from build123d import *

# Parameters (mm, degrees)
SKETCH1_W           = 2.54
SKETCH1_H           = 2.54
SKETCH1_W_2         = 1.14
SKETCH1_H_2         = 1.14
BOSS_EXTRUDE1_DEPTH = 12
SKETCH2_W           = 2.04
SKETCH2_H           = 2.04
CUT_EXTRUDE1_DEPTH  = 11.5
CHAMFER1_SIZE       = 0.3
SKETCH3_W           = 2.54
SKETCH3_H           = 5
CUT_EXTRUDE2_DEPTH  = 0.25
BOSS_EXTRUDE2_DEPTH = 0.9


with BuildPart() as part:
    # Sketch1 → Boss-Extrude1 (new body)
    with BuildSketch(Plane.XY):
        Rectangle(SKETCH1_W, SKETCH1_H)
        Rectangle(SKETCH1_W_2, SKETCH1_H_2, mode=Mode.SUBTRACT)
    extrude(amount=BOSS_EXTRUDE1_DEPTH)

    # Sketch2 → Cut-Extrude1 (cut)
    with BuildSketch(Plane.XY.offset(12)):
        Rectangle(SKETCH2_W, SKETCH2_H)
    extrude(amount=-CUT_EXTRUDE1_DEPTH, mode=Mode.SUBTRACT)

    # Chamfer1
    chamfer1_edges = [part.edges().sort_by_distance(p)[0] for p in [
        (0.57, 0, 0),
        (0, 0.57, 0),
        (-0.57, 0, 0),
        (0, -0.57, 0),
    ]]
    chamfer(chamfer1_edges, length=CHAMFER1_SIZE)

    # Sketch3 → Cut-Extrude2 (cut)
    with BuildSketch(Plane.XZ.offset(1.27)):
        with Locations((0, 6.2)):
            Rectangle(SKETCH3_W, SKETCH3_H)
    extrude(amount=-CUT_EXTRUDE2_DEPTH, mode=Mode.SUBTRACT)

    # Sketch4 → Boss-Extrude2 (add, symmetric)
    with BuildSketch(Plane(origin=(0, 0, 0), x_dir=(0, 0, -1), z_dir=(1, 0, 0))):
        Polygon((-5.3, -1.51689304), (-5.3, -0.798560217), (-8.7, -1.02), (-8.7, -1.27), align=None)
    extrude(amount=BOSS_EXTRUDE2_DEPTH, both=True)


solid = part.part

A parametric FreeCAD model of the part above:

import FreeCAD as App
import Part
import Sketcher
Q = App.Units.Quantity


def edges_at(feature, points):
    """Names of the edges that pass closest to the given points."""
    edges = feature.Shape.Edges
    near = lambda p: min(range(len(edges)), key=lambda i: edges[i].distToShape(Part.Vertex(*p))[0])
    return sorted({f"Edge{near(p) + 1}" for p in points})

doc = App.newDocument("Part")
body = doc.addObject("PartDesign::Body", "Body")

# Sketch on XY plane
sketch1 = body.newObject("Sketcher::SketchObject", "Sketch")
sketch1.AttachmentSupport = (doc.getObject("XY_Plane"), [""])
sketch1.MapMode = "FlatFace"
sketch1.addGeometry([
    Part.LineSegment(App.Vector(-1.3, 1.3, 0), App.Vector(-1.3, -1.3, 0)),  # 0
    Part.LineSegment(App.Vector(-1.3, -1.3, 0), App.Vector(1.3, -1.3, 0)),  # 1
    Part.LineSegment(App.Vector(1.3, -1.3, 0), App.Vector(1.3, 1.3, 0)),  # 2
    Part.LineSegment(App.Vector(1.3, 1.3, 0), App.Vector(-1.3, 1.3, 0)),  # 3
    Part.LineSegment(App.Vector(0.6, -0.6, 0), App.Vector(-0.6, -0.6, 0)),  # 4
    Part.LineSegment(App.Vector(-0.6, -0.6, 0), App.Vector(-0.6, 0.6, 0)),  # 5
    Part.LineSegment(App.Vector(-0.6, 0.6, 0), App.Vector(0.6, 0.6, 0)),  # 6
    Part.LineSegment(App.Vector(0.6, 0.6, 0), App.Vector(0.6, -0.6, 0)),  # 7
], False)
sketch1.addConstraint([
    Sketcher.Constraint("Coincident", 0, 2, 1, 1),
    Sketcher.Constraint("Coincident", 1, 2, 2, 1),
    Sketcher.Constraint("Coincident", 2, 2, 3, 1),
    Sketcher.Constraint("Coincident", 3, 2, 0, 1),
    Sketcher.Constraint("Coincident", 4, 2, 5, 1),
    Sketcher.Constraint("Coincident", 5, 2, 6, 1),
    Sketcher.Constraint("Coincident", 6, 2, 7, 1),
    Sketcher.Constraint("Coincident", 7, 2, 4, 1),
    Sketcher.Constraint("Vertical", 0),
    Sketcher.Constraint("Horizontal", 1),
    Sketcher.Constraint("Vertical", 2),
    Sketcher.Constraint("Horizontal", 3),
    Sketcher.Constraint("Horizontal", 4),
    Sketcher.Constraint("Vertical", 5),
    Sketcher.Constraint("Horizontal", 6),
    Sketcher.Constraint("Vertical", 7),
    Sketcher.Constraint("Symmetric", 0, 2, 2, 2, -1, 1),
    Sketcher.Constraint("Symmetric", 4, 2, 6, 2, -1, 1),
    Sketcher.Constraint("Equal", 3, 0),
    Sketcher.Constraint("Equal", 6, 5),
    Sketcher.Constraint("DistanceX", 1, 1, 1, 2, Q("2.54 mm")),
    Sketcher.Constraint("DistanceX", 4, 2, 4, 1, Q("1.14 mm")),
])
pad1 = body.newObject("PartDesign::Pad", "Pad")
pad1.Profile = sketch1
pad1.Length = 12

# Sketch on XY plane
sketch2 = body.newObject("Sketcher::SketchObject", "Sketch001")
sketch2.AttachmentSupport = (doc.getObject("XY_Plane"), [""])
sketch2.MapMode = "FlatFace"
sketch2.AttachmentOffset = App.Placement(App.Vector(0, 0, 12), App.Rotation())
sketch2.addGeometry([
    Part.LineSegment(App.Vector(-1, 1, 0), App.Vector(-1, -1, 0)),
    Part.LineSegment(App.Vector(-1, -1, 0), App.Vector(1, -1, 0)),
    Part.LineSegment(App.Vector(1, -1, 0), App.Vector(1, 1, 0)),
    Part.LineSegment(App.Vector(1, 1, 0), App.Vector(-1, 1, 0)),
], False)
sketch2.addConstraint([
    Sketcher.Constraint("Coincident", 0, 2, 1, 1),
    Sketcher.Constraint("Coincident", 1, 2, 2, 1),
    Sketcher.Constraint("Coincident", 2, 2, 3, 1),
    Sketcher.Constraint("Coincident", 3, 2, 0, 1),
    Sketcher.Constraint("Vertical", 0),
    Sketcher.Constraint("Horizontal", 1),
    Sketcher.Constraint("Vertical", 2),
    Sketcher.Constraint("Horizontal", 3),
    Sketcher.Constraint("Symmetric", 0, 2, 2, 2, -1, 1),
    Sketcher.Constraint("Equal", 3, 0),
    Sketcher.Constraint("DistanceX", 1, 1, 1, 2, Q("2.04 mm")),
])
pocket1 = body.newObject("PartDesign::Pocket", "Pocket")
pocket1.Profile = sketch2
pocket1.Length = 11.5
doc.recompute()

chamfer = body.newObject("PartDesign::Chamfer", "Chamfer")
chamfer.Base = (pocket1, edges_at(pocket1, [
    (0.57, 0, 0),
    (0, 0.57, 0),
    (-0.57, 0, 0),
    (0, -0.57, 0),
]))
chamfer.Size = 0.3

# Sketch on XZ plane
sketch3 = body.newObject("Sketcher::SketchObject", "Sketch002")
sketch3.AttachmentSupport = (doc.getObject("XZ_Plane"), [""])
sketch3.MapMode = "FlatFace"
sketch3.AttachmentOffset = App.Placement(App.Vector(0, 0, 1.27), App.Rotation())
sketch3.addGeometry([
    Part.LineSegment(App.Vector(-1.3, 8.7, 0), App.Vector(-1.3, 3.7, 0)),
    Part.LineSegment(App.Vector(-1.3, 3.7, 0), App.Vector(1.3, 3.7, 0)),
    Part.LineSegment(App.Vector(1.3, 3.7, 0), App.Vector(1.3, 8.7, 0)),
    Part.LineSegment(App.Vector(1.3, 8.7, 0), App.Vector(-1.3, 8.7, 0)),
], False)
sketch3.addConstraint([
    Sketcher.Constraint("Coincident", 0, 2, 1, 1),
    Sketcher.Constraint("Coincident", 1, 2, 2, 1),
    Sketcher.Constraint("Coincident", 2, 2, 3, 1),
    Sketcher.Constraint("Coincident", 3, 2, 0, 1),
    Sketcher.Constraint("Vertical", 0),
    Sketcher.Constraint("Horizontal", 1),
    Sketcher.Constraint("Vertical", 2),
    Sketcher.Constraint("Horizontal", 3),
    Sketcher.Constraint("DistanceY", 0, 2, 0, 1, Q("5 mm")),
    Sketcher.Constraint("DistanceX", 1, 1, 1, 2, Q("2.54 mm")),
    Sketcher.Constraint("DistanceY", -1, 1, 0, 2, Q("3.7 mm")),
    Sketcher.Constraint("DistanceX", 0, 2, -1, 1, Q("1.27 mm")),
])
pocket2 = body.newObject("PartDesign::Pocket", "Pocket001")
pocket2.Profile = sketch3
pocket2.Length = 0.25

# Sketch on YZ plane
sketch4 = body.newObject("Sketcher::SketchObject", "Sketch003")
sketch4.AttachmentSupport = (doc.getObject("YZ_Plane"), [""])
sketch4.MapMode = "FlatFace"
sketch4.addGeometry([
    Part.LineSegment(App.Vector(-1.52, 5.3, 0), App.Vector(-0.8, 5.3, 0)),
    Part.LineSegment(App.Vector(-0.8, 5.3, 0), App.Vector(-1.02, 8.7, 0)),
    Part.LineSegment(App.Vector(-1.02, 8.7, 0), App.Vector(-1.27, 8.7, 0)),
    Part.LineSegment(App.Vector(-1.27, 8.7, 0), App.Vector(-1.52, 5.3, 0)),
], False)
sketch4.addConstraint([
    Sketcher.Constraint("Coincident", 0, 2, 1, 1),
    Sketcher.Constraint("Coincident", 1, 2, 2, 1),
    Sketcher.Constraint("Coincident", 2, 2, 3, 1),
    Sketcher.Constraint("Coincident", 3, 2, 0, 1),
    Sketcher.Constraint("Horizontal", 0),
    Sketcher.Constraint("Horizontal", 2),
    Sketcher.Constraint("DistanceX", 2, 2, 2, 1, Q("0.25 mm")),
    Sketcher.Constraint("DistanceY", -1, 1, 0, 2, Q("5.3 mm")),
    Sketcher.Constraint("DistanceY", -1, 1, 1, 2, Q("8.7 mm")),
    Sketcher.Constraint("DistanceX", 1, 2, -1, 1, Q("1.02 mm")),
    Sketcher.Constraint("DistanceX", 0, 1, 0, 2, Q("0.718333 mm")),
    Sketcher.Constraint("DistanceX", 0, 2, -1, 1, Q("0.79856 mm")),
])
pad2 = body.newObject("PartDesign::Pad", "Pad001")
pad2.Profile = sketch4
pad2.Length = 1.8
pad2.Midplane = True

doc.recompute()
